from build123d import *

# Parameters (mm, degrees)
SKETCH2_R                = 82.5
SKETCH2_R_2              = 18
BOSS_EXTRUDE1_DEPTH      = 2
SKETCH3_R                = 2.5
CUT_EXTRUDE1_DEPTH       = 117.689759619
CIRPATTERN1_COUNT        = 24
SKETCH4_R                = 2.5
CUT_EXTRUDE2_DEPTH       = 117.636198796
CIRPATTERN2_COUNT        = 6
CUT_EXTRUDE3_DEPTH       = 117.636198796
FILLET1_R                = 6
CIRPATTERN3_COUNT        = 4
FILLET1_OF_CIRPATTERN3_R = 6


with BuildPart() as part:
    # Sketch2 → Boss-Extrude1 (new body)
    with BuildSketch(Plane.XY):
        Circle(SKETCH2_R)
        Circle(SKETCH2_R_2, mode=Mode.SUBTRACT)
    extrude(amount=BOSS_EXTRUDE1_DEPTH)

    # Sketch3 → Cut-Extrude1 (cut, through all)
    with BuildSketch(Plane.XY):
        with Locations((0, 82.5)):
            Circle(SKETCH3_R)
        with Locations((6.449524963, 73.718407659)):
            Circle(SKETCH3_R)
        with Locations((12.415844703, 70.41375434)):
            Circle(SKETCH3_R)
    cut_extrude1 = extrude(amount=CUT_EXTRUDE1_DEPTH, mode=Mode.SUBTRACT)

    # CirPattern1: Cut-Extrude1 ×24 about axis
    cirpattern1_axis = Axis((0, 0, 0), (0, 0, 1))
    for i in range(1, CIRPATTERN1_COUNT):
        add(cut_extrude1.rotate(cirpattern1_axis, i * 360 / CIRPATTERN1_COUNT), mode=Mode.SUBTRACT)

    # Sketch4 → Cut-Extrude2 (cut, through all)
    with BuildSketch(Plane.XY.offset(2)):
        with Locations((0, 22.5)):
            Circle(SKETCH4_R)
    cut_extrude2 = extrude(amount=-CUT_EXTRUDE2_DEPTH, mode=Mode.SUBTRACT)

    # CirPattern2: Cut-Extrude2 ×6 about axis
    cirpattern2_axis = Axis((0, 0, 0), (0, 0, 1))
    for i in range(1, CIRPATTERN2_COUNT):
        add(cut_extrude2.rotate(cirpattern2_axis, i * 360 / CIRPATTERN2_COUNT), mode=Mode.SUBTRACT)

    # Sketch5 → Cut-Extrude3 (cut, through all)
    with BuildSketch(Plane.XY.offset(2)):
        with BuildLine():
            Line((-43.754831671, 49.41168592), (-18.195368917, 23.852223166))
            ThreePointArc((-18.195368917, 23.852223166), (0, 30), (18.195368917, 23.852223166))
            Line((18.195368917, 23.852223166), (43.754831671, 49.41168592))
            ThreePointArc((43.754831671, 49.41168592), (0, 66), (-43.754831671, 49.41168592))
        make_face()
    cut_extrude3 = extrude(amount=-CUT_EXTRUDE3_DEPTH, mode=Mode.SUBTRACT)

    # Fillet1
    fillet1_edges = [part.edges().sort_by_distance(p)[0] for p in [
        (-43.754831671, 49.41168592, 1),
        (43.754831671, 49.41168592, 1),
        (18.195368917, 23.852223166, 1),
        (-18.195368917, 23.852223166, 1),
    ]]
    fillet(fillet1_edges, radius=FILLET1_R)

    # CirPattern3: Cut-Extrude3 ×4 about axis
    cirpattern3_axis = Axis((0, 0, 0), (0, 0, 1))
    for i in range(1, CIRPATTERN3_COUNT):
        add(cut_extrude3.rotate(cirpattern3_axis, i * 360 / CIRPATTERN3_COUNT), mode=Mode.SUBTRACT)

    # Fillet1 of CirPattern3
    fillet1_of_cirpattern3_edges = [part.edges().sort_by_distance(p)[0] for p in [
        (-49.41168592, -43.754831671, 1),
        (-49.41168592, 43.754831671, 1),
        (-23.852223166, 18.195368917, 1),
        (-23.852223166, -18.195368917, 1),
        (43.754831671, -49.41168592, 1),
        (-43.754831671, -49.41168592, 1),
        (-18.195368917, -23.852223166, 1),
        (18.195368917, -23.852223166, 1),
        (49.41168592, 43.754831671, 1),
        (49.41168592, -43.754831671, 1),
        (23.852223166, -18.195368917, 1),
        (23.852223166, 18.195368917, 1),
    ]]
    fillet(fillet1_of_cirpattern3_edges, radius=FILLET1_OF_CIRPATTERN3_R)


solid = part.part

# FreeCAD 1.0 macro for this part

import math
import FreeCAD as App
import Part
import Sketcher

V = App.Vector
Q = App.Units.Quantity


def edges_at(feature, points):
    """Names of the edges that pass closest to the given points."""
    edges = feature.Shape.Edges
    near = lambda p: min(range(len(edges)), key=lambda i: edges[i].distToShape(Part.Vertex(*p))[0])
    return sorted({f"Edge{near(p) + 1}" for p in points})

doc = App.newDocument("Part")
params = doc.addObject("Spreadsheet::Sheet", "Params")
for row, (alias, value) in enumerate([
    ("sketch1_diameter", "165 mm"),
    ("sketch1_diameter2", "36 mm"),
    ("pad1_length", "2 mm"),
    ("sketch2_diameter", "5 mm"),
    ("sketch3_diameter", "5 mm"),
    ("sketch4_radius", "30 mm"),
    ("sketch4_radius2", "66 mm"),
    ("fillet_radius", "6 mm"),
    ("fillet2_radius", "6 mm"),
], start=1):
    params.set(f"A{row}", alias)
    params.set(f"B{row}", "=" + value)
    params.setAlias(f"B{row}", alias)

body = doc.addObject("PartDesign::Body", "Body")

sketch1 = body.newObject("Sketcher::SketchObject", "Sketch")
sketch1.AttachmentSupport = (doc.getObject("XY_Plane"), [""])
sketch1.MapMode = "FlatFace"
sketch1.addGeometry([
    Part.Circle(V(0, 0, 0), V(0, 0, 1), 82),
    Part.Circle(V(0, 0, 0), V(0, 0, 1), 18),
], False)
sketch1.addConstraint([
    Sketcher.Constraint("Coincident", 0, 3, -1, 1),
    Sketcher.Constraint("Coincident", 1, 3, -1, 1),
    Sketcher.Constraint("Diameter", 0, Q("165 mm")),
    Sketcher.Constraint("Diameter", 1, Q("36 mm")),
])
sketch1.setExpression("Constraints[2]", "Params.sketch1_diameter")
sketch1.setExpression("Constraints[3]", "Params.sketch1_diameter2")
pad1 = body.newObject("PartDesign::Pad", "Pad")
pad1.Profile = sketch1
pad1.setExpression("Length", "Params.pad1_length")

sketch2 = body.newObject("Sketcher::SketchObject", "Sketch001")
sketch2.AttachmentSupport = (doc.getObject("XY_Plane"), [""])
sketch2.MapMode = "FlatFace"
sketch2.addGeometry([
    Part.Circle(V(0, 82.5, 0), V(0, 0, 1), 2.5),
    Part.Circle(V(6.4, 73.7, 0), V(0, 0, 1), 2.5),
    Part.Circle(V(12.4, 70.4, 0), V(0, 0, 1), 2.5),
], False)
sketch2.addConstraint([
    Sketcher.Constraint("Equal", 0, 1),
    Sketcher.Constraint("Equal", 1, 2),
    Sketcher.Constraint("PointOnObject", 0, 3, -2),
    Sketcher.Constraint("Diameter", 0, Q("5 mm")),
    Sketcher.Constraint("DistanceY", -1, 1, 0, 3, Q("82.5 mm")),
    Sketcher.Constraint("DistanceX", 1, 3, 2, 3, Q("5.96632 mm")),
    Sketcher.Constraint("DistanceX", -1, 1, 1, 3, Q("6.449525 mm")),
    Sketcher.Constraint("DistanceY", -1, 1, 1, 3, Q("73.718408 mm")),
    Sketcher.Constraint("DistanceY", -1, 1, 2, 3, Q("70.413754 mm")),
])
sketch2.setExpression("Constraints[3]", "Params.sketch2_diameter")
pocket1 = body.newObject("PartDesign::Pocket", "Pocket")
pocket1.Profile = sketch2
pocket1.Type = "ThroughAll"
pocket1.Reversed = True
doc.recompute()

polarpattern = body.newObject("PartDesign::PolarPattern", "PolarPattern")
polarpattern.Originals = [pocket1]
polarpattern.Axis = (doc.getObject("Z_Axis"), [""])
polarpattern.Angle = 360
polarpattern.Occurrences = 24
body.Tip = polarpattern

sketch3 = body.newObject("Sketcher::SketchObject", "Sketch002")
sketch3.AttachmentSupport = (doc.getObject("XY_Plane"), [""])
sketch3.MapMode = "FlatFace"
sketch3.AttachmentOffset = App.Placement(V(0, 0, 2), App.Rotation())
sketch3.addGeometry(Part.Circle(V(0, 22.5, 0), V(0, 0, 1), 2.5), False)
sketch3.addConstraint([
    Sketcher.Constraint("PointOnObject", 0, 3, -2),
    Sketcher.Constraint("Diameter", 0, Q("5 mm")),
    Sketcher.Constraint("DistanceY", -1, 1, 0, 3, Q("22.5 mm")),
])
sketch3.setExpression("Constraints[1]", "Params.sketch3_diameter")
pocket2 = body.newObject("PartDesign::Pocket", "Pocket001")
pocket2.Profile = sketch3
pocket2.Type = "ThroughAll"
doc.recompute()

polarpattern2 = body.newObject("PartDesign::PolarPattern", "PolarPattern001")
polarpattern2.Originals = [pocket2]
polarpattern2.Axis = (doc.getObject("Z_Axis"), [""])
polarpattern2.Angle = 360
polarpattern2.Occurrences = 6
body.Tip = polarpattern2

sketch4 = body.newObject("Sketcher::SketchObject", "Sketch003")
sketch4.AttachmentSupport = (doc.getObject("XY_Plane"), [""])
sketch4.MapMode = "FlatFace"
sketch4.AttachmentOffset = App.Placement(V(0, 0, 2), App.Rotation())
sketch4.addGeometry([
    Part.LineSegment(V(-44, 49, 0), V(-18, 24, 0)),
    Part.ArcOfCircle(Part.Circle(V(0, 0, 0), V(0, 0, 1), 30), math.radians(53), math.radians(127)),
    Part.LineSegment(V(18, 24, 0), V(44, 49, 0)),
    Part.ArcOfCircle(Part.Circle(V(0, 0, 0), V(0, 0, 1), 66), math.radians(48), math.radians(132)),
], False)
sketch4.addConstraint([
    Sketcher.Constraint("Coincident", 0, 2, 1, 2),
    Sketcher.Constraint("Coincident", 1, 1, 2, 1),
    Sketcher.Constraint("Coincident", 2, 2, 3, 1),
    Sketcher.Constraint("Coincident", 3, 2, 0, 1),
    Sketcher.Constraint("Coincident", 1, 3, -1, 1),
    Sketcher.Constraint("Coincident", 3, 3, -1, 1),
    Sketcher.Constraint("Perpendicular", 0, 2),
    Sketcher.Constraint("Horizontal", 0, 2, 1, 1),
    Sketcher.Constraint("Horizontal", 2, 2, 3, 2),
    Sketcher.Constraint("Radius", 1, Q("30 mm")),
    Sketcher.Constraint("Radius", 3, Q("66 mm")),
    Sketcher.Constraint("DistanceX", 0, 2, 2, 2, Q("61.950201 mm")),
])
sketch4.setExpression("Constraints[9]", "Params.sketch4_radius")
sketch4.setExpression("Constraints[10]", "Params.sketch4_radius2")
pocket3 = body.newObject("PartDesign::Pocket", "Pocket002")
pocket3.Profile = sketch4
pocket3.Type = "ThroughAll"
doc.recompute()

fillet = body.newObject("PartDesign::Fillet", "Fillet")
fillet.Base = (pocket3, edges_at(pocket3, [
    (-43.755, 49.412, 1),
    (43.755, 49.412, 1),
    (18.195, 23.852, 1),
    (-18.195, 23.852, 1),
]))
fillet.setExpression("Radius", "Params.fillet_radius")
doc.recompute()

polarpattern3 = body.newObject("PartDesign::PolarPattern", "PolarPattern002")
polarpattern3.Originals = [pocket3]
polarpattern3.Axis = (doc.getObject("Z_Axis"), [""])
polarpattern3.Angle = 360
polarpattern3.Occurrences = 4
body.Tip = polarpattern3
doc.recompute()

fillet2 = body.newObject("PartDesign::Fillet", "Fillet001")
fillet2.Base = (polarpattern3, edges_at(polarpattern3, [
    (-49.412, -43.755, 1),
    (-49.412, 43.755, 1),
    (-23.852, 18.195, 1),
    (-23.852, -18.195, 1),
    (43.755, -49.412, 1),
    (-43.755, -49.412, 1),
    (-18.195, -23.852, 1),
    (18.195, -23.852, 1),
    (49.412, 43.755, 1),
    (49.412, -43.755, 1),
    (23.852, -18.195, 1),
    (23.852, 18.195, 1),
]))
fillet2.setExpression("Radius", "Params.fillet2_radius")

doc.recompute()
